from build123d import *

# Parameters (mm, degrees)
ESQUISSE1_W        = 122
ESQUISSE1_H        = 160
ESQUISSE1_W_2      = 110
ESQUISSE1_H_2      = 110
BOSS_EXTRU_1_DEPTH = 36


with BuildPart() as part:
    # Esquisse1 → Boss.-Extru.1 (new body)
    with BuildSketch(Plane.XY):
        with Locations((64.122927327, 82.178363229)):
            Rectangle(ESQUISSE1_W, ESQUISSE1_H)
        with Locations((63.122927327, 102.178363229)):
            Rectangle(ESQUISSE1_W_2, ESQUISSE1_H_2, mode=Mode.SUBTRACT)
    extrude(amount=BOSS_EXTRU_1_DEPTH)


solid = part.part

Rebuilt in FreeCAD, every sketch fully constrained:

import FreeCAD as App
import Part
import Sketcher

V = App.Vector

doc = App.newDocument("Part")
body = doc.addObject("PartDesign::Body", "Body")

# Sketch on XY plane
sketch1 = body.newObject("Sketcher::SketchObject", "Sketch")
sketch1.AttachmentSupport = (doc.getObject("XY_Plane"), [""])
sketch1.MapMode = "FlatFace"
sketch1.addGeometry(Part.LineSegment(V(3, 162, 0), V(3, 2, 0)), False)
sketch1.addGeometry(Part.LineSegment(V(3, 2, 0), V(125, 2, 0)), False)
sketch1.addGeometry(Part.LineSegment(V(125, 2, 0), V(125, 162, 0)), False)
sketch1.addGeometry(Part.LineSegment(V(125, 162, 0), V(3, 162, 0)), False)
sketch1.addGeometry(Part.LineSegment(V(118, 47, 0), V(8, 47, 0)), False)
sketch1.addGeometry(Part.LineSegment(V(8, 47, 0), V(8, 157, 0)), False)
sketch1.addGeometry(Part.LineSegment(V(8, 157, 0), V(118, 157, 0)), False)
sketch1.addGeometry(Part.LineSegment(V(118, 157, 0), V(118, 47, 0)), False)
sketch1.addConstraint(Sketcher.Constraint("Coincident", 0, 2, 1, 1))
sketch1.addConstraint(Sketcher.Constraint("Coincident", 1, 2, 2, 1))
sketch1.addConstraint(Sketcher.Constraint("Coincident", 2, 2, 3, 1))
sketch1.addConstraint(Sketcher.Constraint("Coincident", 3, 2, 0, 1))
sketch1.addConstraint(Sketcher.Constraint("Coincident", 4, 2, 5, 1))
sketch1.addConstraint(Sketcher.Constraint("Coincident", 5, 2, 6, 1))
sketch1.addConstraint(Sketcher.Constraint("Coincident", 6, 2, 7, 1))
sketch1.addConstraint(Sketcher.Constraint("Coincident", 7, 2, 4, 1))
sketch1.addConstraint(Sketcher.Constraint("Vertical", 0))
sketch1.addConstraint(Sketcher.Constraint("Horizontal", 1))
sketch1.addConstraint(Sketcher.Constraint("Vertical", 2))
sketch1.addConstraint(Sketcher.Constraint("Horizontal", 3))
sketch1.addConstraint(Sketcher.Constraint("Horizontal", 4))
sketch1.addConstraint(Sketcher.Constraint("Vertical", 5))
sketch1.addConstraint(Sketcher.Constraint("Horizontal", 6))
sketch1.addConstraint(Sketcher.Constraint("Vertical", 7))
sketch1.addConstraint(Sketcher.Constraint("Equal", 6, 5))
sketch1.addConstraint(Sketcher.Constraint("DistanceX", 1, 1, 1, 2, 122.0))
sketch1.addConstraint(Sketcher.Constraint("DistanceX", 4, 2, 4, 1, 110.0))
sketch1.addConstraint(Sketcher.Constraint("DistanceY", 0, 2, 0, 1, 160.0))
sketch1.addConstraint(Sketcher.Constraint("DistanceX", 0, 2, 4, 2, 5.0))
sketch1.addConstraint(Sketcher.Constraint("DistanceY", 0, 2, 4, 2, 45.0))
sketch1.addConstraint(Sketcher.Constraint("DistanceX", -1, 1, 0, 2, 3.122927))
sketch1.addConstraint(Sketcher.Constraint("DistanceY", -1, 1, 0, 2, 2.178363))
pad1 = body.newObject("PartDesign::Pad", "Pad")
pad1.Profile = sketch1
pad1.Length = 36

doc.recompute()
